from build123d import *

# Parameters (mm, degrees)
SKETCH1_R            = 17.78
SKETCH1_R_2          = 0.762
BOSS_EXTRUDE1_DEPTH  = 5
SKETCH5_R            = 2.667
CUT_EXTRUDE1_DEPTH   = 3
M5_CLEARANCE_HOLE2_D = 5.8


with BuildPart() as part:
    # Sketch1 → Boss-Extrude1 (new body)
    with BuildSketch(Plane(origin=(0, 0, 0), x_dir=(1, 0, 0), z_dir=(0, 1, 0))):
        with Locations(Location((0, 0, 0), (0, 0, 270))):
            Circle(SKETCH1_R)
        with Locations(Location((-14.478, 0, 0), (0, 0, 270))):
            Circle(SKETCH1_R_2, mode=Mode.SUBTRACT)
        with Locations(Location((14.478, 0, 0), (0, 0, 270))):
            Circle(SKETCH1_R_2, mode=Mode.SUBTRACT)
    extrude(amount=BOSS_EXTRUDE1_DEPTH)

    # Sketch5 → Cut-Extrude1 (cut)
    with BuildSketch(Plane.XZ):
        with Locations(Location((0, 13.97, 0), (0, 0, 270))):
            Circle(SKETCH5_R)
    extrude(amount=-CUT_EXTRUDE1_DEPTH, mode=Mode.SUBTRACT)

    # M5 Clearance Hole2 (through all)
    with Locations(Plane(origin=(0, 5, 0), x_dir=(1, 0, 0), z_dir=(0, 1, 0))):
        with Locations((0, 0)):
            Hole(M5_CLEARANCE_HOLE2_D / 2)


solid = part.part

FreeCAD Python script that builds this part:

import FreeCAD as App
import Part
import Sketcher

V = App.Vector
Q = App.Units.Quantity

doc = App.newDocument("Part")
params = doc.addObject("Spreadsheet::Sheet", "Params")
for row, (alias, value) in enumerate([
    ("sketch1_diameter", "35.56 mm"),
    ("pad1_length", "5 mm"),
    ("pocket1_length", "3 mm"),
    ("sketch3_diameter", "5.8 mm"),
    ("hole_diameter", "5.8 mm"),
], start=1):
    params.set(f"A{row}", alias)
    params.set(f"B{row}", "=" + value)
    params.setAlias(f"B{row}", alias)

body = doc.addObject("PartDesign::Body", "Body")

sketch1 = body.newObject("Sketcher::SketchObject", "Sketch")
sketch1.AttachmentSupport = (doc.getObject("XZ_Plane"), [""])
sketch1.MapMode = "FlatFace"
sketch1.addGeometry([
    Part.Circle(V(0, 0, 0), V(0, 0, 1), 17.8),
    Part.Circle(V(-14.5, 0, 0), V(0, 0, 1), 0.8),
    Part.Circle(V(14.5, 0, 0), V(0, 0, 1), 0.8),
], False)
sketch1.addConstraint([
    Sketcher.Constraint("Coincident", 0, 3, -1, 1),
    Sketcher.Constraint("Equal", 1, 2),
    Sketcher.Constraint("Symmetric", 1, 3, 2, 3, -1, 1),
    Sketcher.Constraint("PointOnObject", 1, 3, -1),
    Sketcher.Constraint("Diameter", 0, Q("35.56 mm")),
    Sketcher.Constraint("Diameter", 1, Q("1.524 mm")),
    Sketcher.Constraint("DistanceX", 1, 3, -1, 1, Q("14.478 mm")),
])
sketch1.setExpression("Constraints[4]", "Params.sketch1_diameter")
pad1 = body.newObject("PartDesign::Pad", "Pad")
pad1.Profile = sketch1
pad1.setExpression("Length", "Params.pad1_length")
pad1.Reversed = True

sketch2 = body.newObject("Sketcher::SketchObject", "Sketch001")
sketch2.AttachmentSupport = (doc.getObject("XZ_Plane"), [""])
sketch2.MapMode = "FlatFace"
sketch2.addGeometry(Part.Circle(V(0, 14, 0), V(0, 0, 1), 2.7), False)
sketch2.addConstraint([
    Sketcher.Constraint("PointOnObject", 0, 3, -2),
    Sketcher.Constraint("Diameter", 0, Q("5.334 mm")),
    Sketcher.Constraint("DistanceY", -1, 1, 0, 3, Q("13.97 mm")),
])
pocket1 = body.newObject("PartDesign::Pocket", "Pocket")
pocket1.Profile = sketch2
pocket1.setExpression("Length", "Params.pocket1_length")

sketch3 = body.newObject("Sketcher::SketchObject", "Sketch002")
sketch3.AttachmentSupport = (doc.getObject("XZ_Plane"), [""])
sketch3.MapMode = "FlatFace"
sketch3.AttachmentOffset = App.Placement(V(0, 0, -5), App.Rotation())
sketch3.addGeometry(Part.Circle(V(0, 0, 0), V(0, 0, 1), 2.9), False)
sketch3.addConstraint([
    Sketcher.Constraint("Coincident", 0, 3, -1, 1),
    Sketcher.Constraint("Diameter", 0, Q("5.8 mm")),
])
sketch3.setExpression("Constraints[1]", "Params.sketch3_diameter")
doc.recompute()
hole = body.newObject("PartDesign::Hole", "Hole")
hole.Profile = sketch3
hole.ThreadType = "None"
hole.setExpression("Diameter", "Params.hole_diameter")
hole.DepthType = "ThroughAll"
hole.Reversed = True

doc.recompute()
